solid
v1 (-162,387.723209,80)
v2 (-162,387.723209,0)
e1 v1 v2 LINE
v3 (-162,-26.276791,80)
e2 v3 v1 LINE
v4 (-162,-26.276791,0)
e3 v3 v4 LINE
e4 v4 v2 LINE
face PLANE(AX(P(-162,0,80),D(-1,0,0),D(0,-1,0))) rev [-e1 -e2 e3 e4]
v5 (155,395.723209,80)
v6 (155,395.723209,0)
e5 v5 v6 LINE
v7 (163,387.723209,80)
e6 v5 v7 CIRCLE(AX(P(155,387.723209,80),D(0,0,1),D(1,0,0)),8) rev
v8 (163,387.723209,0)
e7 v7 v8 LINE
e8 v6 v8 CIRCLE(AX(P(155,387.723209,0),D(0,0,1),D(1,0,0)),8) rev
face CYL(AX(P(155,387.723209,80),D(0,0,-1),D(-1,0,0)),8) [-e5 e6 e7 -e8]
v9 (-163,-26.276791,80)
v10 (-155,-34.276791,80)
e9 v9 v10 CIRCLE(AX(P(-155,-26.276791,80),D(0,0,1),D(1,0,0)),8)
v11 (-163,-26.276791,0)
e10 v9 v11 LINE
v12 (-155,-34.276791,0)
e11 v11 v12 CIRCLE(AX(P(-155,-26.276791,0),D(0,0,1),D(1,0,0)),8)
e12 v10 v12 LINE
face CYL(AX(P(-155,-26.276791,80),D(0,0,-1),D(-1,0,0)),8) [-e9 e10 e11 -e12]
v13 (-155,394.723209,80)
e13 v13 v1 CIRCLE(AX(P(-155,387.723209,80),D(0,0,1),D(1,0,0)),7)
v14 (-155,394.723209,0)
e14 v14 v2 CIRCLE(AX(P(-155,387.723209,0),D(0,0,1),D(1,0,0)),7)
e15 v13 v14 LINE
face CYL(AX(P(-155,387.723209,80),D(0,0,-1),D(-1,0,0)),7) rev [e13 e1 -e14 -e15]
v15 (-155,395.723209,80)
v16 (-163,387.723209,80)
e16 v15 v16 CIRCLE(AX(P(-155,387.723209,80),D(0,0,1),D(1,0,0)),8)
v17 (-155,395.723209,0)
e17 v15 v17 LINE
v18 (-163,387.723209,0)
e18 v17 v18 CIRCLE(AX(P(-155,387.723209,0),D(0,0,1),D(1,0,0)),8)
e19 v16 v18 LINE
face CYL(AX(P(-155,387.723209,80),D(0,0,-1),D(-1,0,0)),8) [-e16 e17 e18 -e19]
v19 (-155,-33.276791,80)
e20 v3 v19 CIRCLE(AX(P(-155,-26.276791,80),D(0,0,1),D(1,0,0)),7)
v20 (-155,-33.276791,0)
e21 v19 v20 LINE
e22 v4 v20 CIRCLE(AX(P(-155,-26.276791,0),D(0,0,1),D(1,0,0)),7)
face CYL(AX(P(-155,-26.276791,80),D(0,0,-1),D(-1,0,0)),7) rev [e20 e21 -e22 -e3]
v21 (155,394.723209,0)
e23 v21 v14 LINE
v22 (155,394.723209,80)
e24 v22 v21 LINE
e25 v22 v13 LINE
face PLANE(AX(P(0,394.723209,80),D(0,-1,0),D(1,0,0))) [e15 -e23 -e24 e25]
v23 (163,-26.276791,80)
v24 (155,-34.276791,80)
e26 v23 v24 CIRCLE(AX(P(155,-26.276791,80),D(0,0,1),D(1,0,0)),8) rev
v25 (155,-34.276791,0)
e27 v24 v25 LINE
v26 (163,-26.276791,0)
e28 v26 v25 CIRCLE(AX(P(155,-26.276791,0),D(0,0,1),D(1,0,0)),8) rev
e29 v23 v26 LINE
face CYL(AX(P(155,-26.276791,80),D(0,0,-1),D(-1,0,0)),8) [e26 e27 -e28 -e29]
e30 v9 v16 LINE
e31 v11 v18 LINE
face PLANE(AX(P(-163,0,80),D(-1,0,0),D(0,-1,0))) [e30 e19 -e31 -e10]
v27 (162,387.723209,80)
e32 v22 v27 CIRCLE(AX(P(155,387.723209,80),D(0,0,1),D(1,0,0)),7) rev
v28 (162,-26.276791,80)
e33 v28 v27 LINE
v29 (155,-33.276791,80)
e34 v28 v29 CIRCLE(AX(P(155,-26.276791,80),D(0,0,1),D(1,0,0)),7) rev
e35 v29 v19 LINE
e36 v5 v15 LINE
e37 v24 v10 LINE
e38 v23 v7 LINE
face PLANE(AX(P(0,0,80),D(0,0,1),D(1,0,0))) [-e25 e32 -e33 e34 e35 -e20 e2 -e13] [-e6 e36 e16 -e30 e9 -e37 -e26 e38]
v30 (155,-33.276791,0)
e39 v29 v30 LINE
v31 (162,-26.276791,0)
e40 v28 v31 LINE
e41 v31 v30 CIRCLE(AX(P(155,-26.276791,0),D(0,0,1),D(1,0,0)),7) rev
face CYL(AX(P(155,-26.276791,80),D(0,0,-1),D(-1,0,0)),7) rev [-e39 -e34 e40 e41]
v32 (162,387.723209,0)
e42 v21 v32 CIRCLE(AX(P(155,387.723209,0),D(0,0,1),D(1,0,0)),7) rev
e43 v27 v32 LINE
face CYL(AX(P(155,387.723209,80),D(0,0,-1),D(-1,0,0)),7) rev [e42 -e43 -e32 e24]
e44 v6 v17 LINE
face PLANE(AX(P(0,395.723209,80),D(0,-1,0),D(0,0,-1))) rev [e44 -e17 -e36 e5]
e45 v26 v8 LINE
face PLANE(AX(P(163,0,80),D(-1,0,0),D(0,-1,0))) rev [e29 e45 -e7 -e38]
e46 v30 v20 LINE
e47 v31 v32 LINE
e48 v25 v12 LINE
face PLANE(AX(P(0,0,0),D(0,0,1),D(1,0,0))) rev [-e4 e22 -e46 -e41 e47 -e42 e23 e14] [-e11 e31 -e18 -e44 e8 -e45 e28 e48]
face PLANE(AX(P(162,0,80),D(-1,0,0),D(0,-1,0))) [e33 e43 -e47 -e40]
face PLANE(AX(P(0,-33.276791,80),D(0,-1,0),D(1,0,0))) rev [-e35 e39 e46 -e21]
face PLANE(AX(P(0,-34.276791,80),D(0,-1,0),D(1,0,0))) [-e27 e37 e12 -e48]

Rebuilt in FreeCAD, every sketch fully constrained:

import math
import FreeCAD as App
import Part
import Sketcher

doc = App.newDocument("Part")
body = doc.addObject("PartDesign::Body", "Body")

# Sketch on XY plane
sketch1 = body.newObject("Sketcher::SketchObject", "Sketch")
sketch1.AttachmentSupport = (doc.getObject("XY_Plane"), [""])
sketch1.MapMode = "FlatFace"
sketch1.addGeometry([
    Part.LineSegment(App.Vector(-155, -34.276791, 0), App.Vector(155, -34.276791, 0)),  # 0
    Part.ArcOfCircle(Part.Circle(App.Vector(155, -26.276791, 0), App.Vector(0, 0, 1), 8), math.radians(-90), math.radians(0)),  # 1
    Part.LineSegment(App.Vector(163, -26.276791, 0), App.Vector(163, 387.723209, 0)),  # 2
    Part.ArcOfCircle(Part.Circle(App.Vector(155, 387.723209, 0), App.Vector(0, 0, 1), 8), math.radians(0), math.radians(90)),  # 3
    Part.LineSegment(App.Vector(155, 395.723209, 0), App.Vector(-155, 395.723209, 0)),  # 4
    Part.ArcOfCircle(Part.Circle(App.Vector(-155, 387.723209, 0), App.Vector(0, 0, 1), 8), math.radians(90), math.radians(180)),  # 5
    Part.LineSegment(App.Vector(-163, 387.723209, 0), App.Vector(-163, -26.276791, 0)),  # 6
    Part.ArcOfCircle(Part.Circle(App.Vector(-155, -26.276791, 0), App.Vector(0, 0, 1), 8), math.radians(180), math.radians(270)),  # 7
    Part.ArcOfCircle(Part.Circle(App.Vector(155, -26.276791, 0), App.Vector(0, 0, 1), 7), math.radians(-90), math.radians(0)),  # 8
    Part.LineSegment(App.Vector(155, -33.276791, 0), App.Vector(-155, -33.276791, 0)),  # 9
    Part.ArcOfCircle(Part.Circle(App.Vector(-155, -26.276791, 0), App.Vector(0, 0, 1), 7), math.radians(-180), math.radians(-90)),  # 10
    Part.LineSegment(App.Vector(-162, -26.276791, 0), App.Vector(-162, 387.723209, 0)),  # 11
    Part.ArcOfCircle(Part.Circle(App.Vector(-155, 387.723209, 0), App.Vector(0, 0, 1), 7), math.radians(90), math.radians(180)),  # 12
    Part.LineSegment(App.Vector(-155, 394.723209, 0), App.Vector(155, 394.723209, 0)),  # 13
    Part.ArcOfCircle(Part.Circle(App.Vector(155, 387.723209, 0), App.Vector(0, 0, 1), 7), math.radians(0), math.radians(90)),  # 14
    Part.LineSegment(App.Vector(162, 387.723209, 0), App.Vector(162, -26.276791, 0)),  # 15
], False)
sketch1.addConstraint([
    Sketcher.Constraint("Tangent", 0, 2, 1, 1),
    Sketcher.Constraint("Tangent", 1, 2, 2, 1),
    Sketcher.Constraint("Tangent", 2, 2, 3, 1),
    Sketcher.Constraint("Tangent", 3, 2, 4, 1),
    Sketcher.Constraint("Tangent", 4, 2, 5, 1),
    Sketcher.Constraint("Tangent", 5, 2, 6, 1),
    Sketcher.Constraint("Tangent", 6, 2, 7, 1),
    Sketcher.Constraint("Tangent", 7, 2, 0, 1),
    Sketcher.Constraint("Tangent", 8, 1, 9, 1),
    Sketcher.Constraint("Tangent", 9, 2, 10, 2),
    Sketcher.Constraint("Tangent", 10, 1, 11, 1),
    Sketcher.Constraint("Tangent", 11, 2, 12, 2),
    Sketcher.Constraint("Tangent", 12, 1, 13, 1),
    Sketcher.Constraint("Tangent", 13, 2, 14, 2),
    Sketcher.Constraint("Tangent", 14, 1, 15, 1),
    Sketcher.Constraint("Tangent", 15, 2, 8, 2),
    Sketcher.Constraint("Horizontal", 0),
    Sketcher.Constraint("Vertical", 2),
    Sketcher.Constraint("Horizontal", 4),
    Sketcher.Constraint("Vertical", 6),
    Sketcher.Constraint("Horizontal", 9),
    Sketcher.Constraint("Vertical", 11),
    Sketcher.Constraint("Horizontal", 13),
    Sketcher.Constraint("Vertical", 15),
    Sketcher.Constraint("Coincident", 8, 3, 1, 3),
    Sketcher.Constraint("Coincident", 10, 3, 7, 3),
    Sketcher.Constraint("Coincident", 12, 3, 5, 3),
    Sketcher.Constraint("Equal", 1, 3),
    Sketcher.Constraint("Equal", 3, 5),
    Sketcher.Constraint("Equal", 5, 7),
    Sketcher.Constraint("Equal", 12, 14),
    Sketcher.Constraint("Radius", 1, 8.0),
    Sketcher.Constraint("Radius", 8, 7.0),
    Sketcher.Constraint("DistanceX", 0, 1, 0, 2, 310.0),
    Sketcher.Constraint("DistanceY", 2, 1, 2, 2, 414.0),
    Sketcher.Constraint("DistanceX", -1, 1, 1, 3, 155.0),
    Sketcher.Constraint("DistanceY", 1, 3, -1, 1, 26.276791),
])
pad1 = body.newObject("PartDesign::Pad", "Pad")
pad1.Profile = sketch1
pad1.Length = 80

doc.recompute()
